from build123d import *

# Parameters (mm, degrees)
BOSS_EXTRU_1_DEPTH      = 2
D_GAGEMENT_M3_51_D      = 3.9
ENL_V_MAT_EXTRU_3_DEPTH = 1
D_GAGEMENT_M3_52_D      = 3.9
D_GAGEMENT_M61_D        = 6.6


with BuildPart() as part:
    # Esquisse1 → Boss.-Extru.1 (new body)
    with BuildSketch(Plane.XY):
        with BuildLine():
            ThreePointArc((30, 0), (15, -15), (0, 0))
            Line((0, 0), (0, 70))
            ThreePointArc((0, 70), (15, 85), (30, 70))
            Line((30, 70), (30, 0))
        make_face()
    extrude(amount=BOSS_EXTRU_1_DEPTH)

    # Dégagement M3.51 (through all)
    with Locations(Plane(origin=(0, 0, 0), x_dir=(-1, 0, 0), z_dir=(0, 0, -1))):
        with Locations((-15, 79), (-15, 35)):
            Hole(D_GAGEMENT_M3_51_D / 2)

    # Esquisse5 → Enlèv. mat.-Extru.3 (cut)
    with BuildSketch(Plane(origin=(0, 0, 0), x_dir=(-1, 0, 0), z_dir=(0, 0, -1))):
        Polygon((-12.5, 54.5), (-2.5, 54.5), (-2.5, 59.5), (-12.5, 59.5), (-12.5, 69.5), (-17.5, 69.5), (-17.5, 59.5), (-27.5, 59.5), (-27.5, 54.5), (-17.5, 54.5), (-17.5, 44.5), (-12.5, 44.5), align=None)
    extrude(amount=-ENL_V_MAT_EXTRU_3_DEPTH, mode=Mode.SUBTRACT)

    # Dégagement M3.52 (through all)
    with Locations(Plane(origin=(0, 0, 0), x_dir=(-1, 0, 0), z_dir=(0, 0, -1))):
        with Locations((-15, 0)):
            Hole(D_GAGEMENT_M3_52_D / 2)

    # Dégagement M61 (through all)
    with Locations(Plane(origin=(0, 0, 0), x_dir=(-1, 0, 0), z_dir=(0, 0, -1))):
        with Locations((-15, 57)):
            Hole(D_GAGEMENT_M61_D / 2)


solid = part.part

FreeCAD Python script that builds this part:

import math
import FreeCAD as App
import Part
import Sketcher
Q = App.Units.Quantity

doc = App.newDocument("Part")
body = doc.addObject("PartDesign::Body", "Body")

# Sketch on XY plane
sketch1 = body.newObject("Sketcher::SketchObject", "Sketch")
sketch1.AttachmentSupport = (doc.getObject("XY_Plane"), [""])
sketch1.MapMode = "FlatFace"
sketch1.addGeometry([
    Part.ArcOfCircle(Part.Circle(App.Vector(15, 0, 0), App.Vector(0, 0, 1), 15), math.radians(180), math.radians(360)),
    Part.LineSegment(App.Vector(30, 0, 0), App.Vector(30, 70, 0)),
    Part.ArcOfCircle(Part.Circle(App.Vector(15, 70, 0), App.Vector(0, 0, 1), 15), math.radians(0), math.radians(180)),
    Part.LineSegment(App.Vector(0, 70, 0), App.Vector(0, 0, 0)),
], False)
sketch1.addConstraint([
    Sketcher.Constraint("Tangent", 0, 2, 1, 1),
    Sketcher.Constraint("Tangent", 1, 2, 2, 1),
    Sketcher.Constraint("Tangent", 2, 2, 3, 1),
    Sketcher.Constraint("Tangent", 3, 2, 0, 1),
    Sketcher.Constraint("Vertical", 1),
    Sketcher.Constraint("Vertical", 3),
    Sketcher.Constraint("Coincident", 3, 2, -1, 1),
    Sketcher.Constraint("Radius", 0, Q("15 mm")),
    Sketcher.Constraint("DistanceY", 1, 1, 1, 2, Q("70 mm")),
])
pad1 = body.newObject("PartDesign::Pad", "Pad")
pad1.Profile = sketch1
pad1.Length = 2

# Sketch on XY plane
sketch2 = body.newObject("Sketcher::SketchObject", "Sketch001")
sketch2.AttachmentSupport = (doc.getObject("XY_Plane"), [""])
sketch2.MapMode = "FlatFace"
sketch2.addGeometry([
    Part.Circle(App.Vector(15, 79, 0), App.Vector(0, 0, 1), 1.9),
    Part.Circle(App.Vector(15, 35, 0), App.Vector(0, 0, 1), 1.9),
], False)
sketch2.addConstraint([
    Sketcher.Constraint("Equal", 0, 1),
    Sketcher.Constraint("Vertical", 0, 3, 1, 3),
    Sketcher.Constraint("Diameter", 0, Q("3.9 mm")),
    Sketcher.Constraint("DistanceX", -1, 1, 0, 3, Q("15 mm")),
    Sketcher.Constraint("DistanceY", -1, 1, 0, 3, Q("79 mm")),
    Sketcher.Constraint("DistanceY", -1, 1, 1, 3, Q("35 mm")),
])
doc.recompute()
hole = body.newObject("PartDesign::Hole", "Hole")
hole.Profile = sketch2
hole.ThreadType = "None"
hole.Diameter = 3.9
hole.DepthType = "ThroughAll"
hole.Reversed = True

# Sketch on XY plane
sketch3 = body.newObject("Sketcher::SketchObject", "Sketch002")
sketch3.AttachmentSupport = (doc.getObject("XY_Plane"), [""])
sketch3.MapMode = "FlatFace"
sketch3.addGeometry([
    Part.LineSegment(App.Vector(12, 54, 0), App.Vector(2, 54, 0)),  # 0
    Part.LineSegment(App.Vector(2, 54, 0), App.Vector(2, 60, 0)),  # 1
    Part.LineSegment(App.Vector(2, 60, 0), App.Vector(12, 60, 0)),  # 2
    Part.LineSegment(App.Vector(12, 60, 0), App.Vector(12, 70, 0)),  # 3
    Part.LineSegment(App.Vector(12, 70, 0), App.Vector(18, 70, 0)),  # 4
    Part.LineSegment(App.Vector(18, 70, 0), App.Vector(18, 60, 0)),  # 5
    Part.LineSegment(App.Vector(18, 60, 0), App.Vector(28, 60, 0)),  # 6
    Part.LineSegment(App.Vector(28, 60, 0), App.Vector(28, 54, 0)),  # 7
    Part.LineSegment(App.Vector(28, 54, 0), App.Vector(18, 54, 0)),  # 8
    Part.LineSegment(App.Vector(18, 54, 0), App.Vector(18, 44, 0)),  # 9
    Part.LineSegment(App.Vector(18, 44, 0), App.Vector(12, 44, 0)),  # 10
    Part.LineSegment(App.Vector(12, 44, 0), App.Vector(12, 54, 0)),  # 11
], False)
sketch3.addConstraint([
    Sketcher.Constraint("Coincident", 0, 2, 1, 1),
    Sketcher.Constraint("Coincident", 1, 2, 2, 1),
    Sketcher.Constraint("Coincident", 2, 2, 3, 1),
    Sketcher.Constraint("Coincident", 3, 2, 4, 1),
    Sketcher.Constraint("Coincident", 4, 2, 5, 1),
    Sketcher.Constraint("Coincident", 5, 2, 6, 1),
    Sketcher.Constraint("Coincident", 6, 2, 7, 1),
    Sketcher.Constraint("Coincident", 7, 2, 8, 1),
    Sketcher.Constraint("Coincident", 8, 2, 9, 1),
    Sketcher.Constraint("Coincident", 9, 2, 10, 1),
    Sketcher.Constraint("Coincident", 10, 2, 11, 1),
    Sketcher.Constraint("Coincident", 11, 2, 0, 1),
    Sketcher.Constraint("Horizontal", 0),
    Sketcher.Constraint("Vertical", 1),
    Sketcher.Constraint("Horizontal", 2),
    Sketcher.Constraint("Vertical", 3),
    Sketcher.Constraint("Horizontal", 4),
    Sketcher.Constraint("Vertical", 5),
    Sketcher.Constraint("Horizontal", 6),
    Sketcher.Constraint("Vertical", 7),
    Sketcher.Constraint("Horizontal", 8),
    Sketcher.Constraint("Vertical", 9),
    Sketcher.Constraint("Horizontal", 10),
    Sketcher.Constraint("Vertical", 11),
    Sketcher.Constraint("Horizontal", 2, 2, 5, 2),
    Sketcher.Constraint("Horizontal", 0, 2, 7, 2),
    Sketcher.Constraint("Vertical", 5, 2, 8, 2),
    Sketcher.Constraint("Vertical", 3, 2, 10, 2),
    Sketcher.Constraint("Equal", 2, 6),
    Sketcher.Constraint("Equal", 10, 1),
    Sketcher.Constraint("Equal", 8, 3),
    Sketcher.Constraint("Equal", 5, 9),
    Sketcher.Constraint("DistanceX", 0, 2, 0, 1, Q("10 mm")),
    Sketcher.Constraint("DistanceX", 4, 1, 4, 2, Q("5 mm")),
    Sketcher.Constraint("DistanceX", -1, 1, 0, 2, Q("2.5 mm")),
    Sketcher.Constraint("DistanceY", -1, 1, 0, 2, Q("54.5 mm")),
])
pocket1 = body.newObject("PartDesign::Pocket", "Pocket")
pocket1.Profile = sketch3
pocket1.Length = 1
pocket1.Reversed = True

# Sketch on XY plane
sketch4 = body.newObject("Sketcher::SketchObject", "Sketch003")
sketch4.AttachmentSupport = (doc.getObject("XY_Plane"), [""])
sketch4.MapMode = "FlatFace"
sketch4.addGeometry(Part.Circle(App.Vector(15, 0, 0), App.Vector(0, 0, 1), 1.9), False)
sketch4.addConstraint([
    Sketcher.Constraint("PointOnObject", 0, 3, -1),
    Sketcher.Constraint("Diameter", 0, Q("3.9 mm")),
    Sketcher.Constraint("DistanceX", -1, 1, 0, 3, Q("15 mm")),
])
doc.recompute()
hole2 = body.newObject("PartDesign::Hole", "Hole001")
hole2.Profile = sketch4
hole2.ThreadType = "None"
hole2.Diameter = 3.9
hole2.DepthType = "ThroughAll"
hole2.Reversed = True

# Sketch on XY plane
sketch5 = body.newObject("Sketcher::SketchObject", "Sketch004")
sketch5.AttachmentSupport = (doc.getObject("XY_Plane"), [""])
sketch5.MapMode = "FlatFace"
sketch5.addGeometry(Part.Circle(App.Vector(15, 57, 0), App.Vector(0, 0, 1), 3.3), False)
sketch5.addConstraint([
    Sketcher.Constraint("Diameter", 0, Q("6.6 mm")),
    Sketcher.Constraint("DistanceX", -1, 1, 0, 3, Q("15 mm")),
    Sketcher.Constraint("DistanceY", -1, 1, 0, 3, Q("57 mm")),
])
doc.recompute()
hole3 = body.newObject("PartDesign::Hole", "Hole002")
hole3.Profile = sketch5
hole3.ThreadType = "None"
hole3.Diameter = 6.6
hole3.DepthType = "ThroughAll"
hole3.Reversed = True

doc.recompute()
